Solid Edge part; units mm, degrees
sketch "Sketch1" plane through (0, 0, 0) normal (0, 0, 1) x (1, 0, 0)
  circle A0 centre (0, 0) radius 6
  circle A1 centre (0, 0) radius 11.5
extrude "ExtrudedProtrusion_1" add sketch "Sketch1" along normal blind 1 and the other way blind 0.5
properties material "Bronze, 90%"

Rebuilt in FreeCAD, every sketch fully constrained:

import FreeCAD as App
import Part
import Sketcher
Q = App.Units.Quantity

doc = App.newDocument("Part")
params = doc.addObject("Spreadsheet::Sheet", "Params")
for row, (alias, value) in enumerate([
    ("sketch1_diameter", "23 mm"),
    ("sketch1_diameter2", "12 mm"),
    ("pad1_length", "1 mm"),
    ("pad1_length2", "0.5 mm"),
], start=1):
    params.set(f"A{row}", alias)
    params.set(f"B{row}", "=" + value)
    params.setAlias(f"B{row}", alias)

body = doc.addObject("PartDesign::Body", "Body")

# Sketch on XY plane
sketch1 = body.newObject("Sketcher::SketchObject", "Sketch")
sketch1.AttachmentSupport = (doc.getObject("XY_Plane"), [""])
sketch1.MapMode = "FlatFace"
sketch1.addGeometry([
    Part.Circle(App.Vector(0, 0, 0), App.Vector(0, 0, 1), 12),
    Part.Circle(App.Vector(0, 0, 0), App.Vector(0, 0, 1), 6),
], False)
sketch1.addConstraint([
    Sketcher.Constraint("Coincident", 0, 3, -1, 1),
    Sketcher.Constraint("Coincident", 1, 3, -1, 1),
    Sketcher.Constraint("Diameter", 0, Q("23 mm")),
    Sketcher.Constraint("Diameter", 1, Q("12 mm")),
])
sketch1.setExpression("Constraints[2]", "Params.sketch1_diameter")
sketch1.setExpression("Constraints[3]", "Params.sketch1_diameter2")
pad1 = body.newObject("PartDesign::Pad", "Pad")
pad1.Profile = sketch1
pad1.Type = "TwoLengths"
pad1.setExpression("Length", "Params.pad1_length")
pad1.setExpression("Length2", "Params.pad1_length2")

doc.recompute()
